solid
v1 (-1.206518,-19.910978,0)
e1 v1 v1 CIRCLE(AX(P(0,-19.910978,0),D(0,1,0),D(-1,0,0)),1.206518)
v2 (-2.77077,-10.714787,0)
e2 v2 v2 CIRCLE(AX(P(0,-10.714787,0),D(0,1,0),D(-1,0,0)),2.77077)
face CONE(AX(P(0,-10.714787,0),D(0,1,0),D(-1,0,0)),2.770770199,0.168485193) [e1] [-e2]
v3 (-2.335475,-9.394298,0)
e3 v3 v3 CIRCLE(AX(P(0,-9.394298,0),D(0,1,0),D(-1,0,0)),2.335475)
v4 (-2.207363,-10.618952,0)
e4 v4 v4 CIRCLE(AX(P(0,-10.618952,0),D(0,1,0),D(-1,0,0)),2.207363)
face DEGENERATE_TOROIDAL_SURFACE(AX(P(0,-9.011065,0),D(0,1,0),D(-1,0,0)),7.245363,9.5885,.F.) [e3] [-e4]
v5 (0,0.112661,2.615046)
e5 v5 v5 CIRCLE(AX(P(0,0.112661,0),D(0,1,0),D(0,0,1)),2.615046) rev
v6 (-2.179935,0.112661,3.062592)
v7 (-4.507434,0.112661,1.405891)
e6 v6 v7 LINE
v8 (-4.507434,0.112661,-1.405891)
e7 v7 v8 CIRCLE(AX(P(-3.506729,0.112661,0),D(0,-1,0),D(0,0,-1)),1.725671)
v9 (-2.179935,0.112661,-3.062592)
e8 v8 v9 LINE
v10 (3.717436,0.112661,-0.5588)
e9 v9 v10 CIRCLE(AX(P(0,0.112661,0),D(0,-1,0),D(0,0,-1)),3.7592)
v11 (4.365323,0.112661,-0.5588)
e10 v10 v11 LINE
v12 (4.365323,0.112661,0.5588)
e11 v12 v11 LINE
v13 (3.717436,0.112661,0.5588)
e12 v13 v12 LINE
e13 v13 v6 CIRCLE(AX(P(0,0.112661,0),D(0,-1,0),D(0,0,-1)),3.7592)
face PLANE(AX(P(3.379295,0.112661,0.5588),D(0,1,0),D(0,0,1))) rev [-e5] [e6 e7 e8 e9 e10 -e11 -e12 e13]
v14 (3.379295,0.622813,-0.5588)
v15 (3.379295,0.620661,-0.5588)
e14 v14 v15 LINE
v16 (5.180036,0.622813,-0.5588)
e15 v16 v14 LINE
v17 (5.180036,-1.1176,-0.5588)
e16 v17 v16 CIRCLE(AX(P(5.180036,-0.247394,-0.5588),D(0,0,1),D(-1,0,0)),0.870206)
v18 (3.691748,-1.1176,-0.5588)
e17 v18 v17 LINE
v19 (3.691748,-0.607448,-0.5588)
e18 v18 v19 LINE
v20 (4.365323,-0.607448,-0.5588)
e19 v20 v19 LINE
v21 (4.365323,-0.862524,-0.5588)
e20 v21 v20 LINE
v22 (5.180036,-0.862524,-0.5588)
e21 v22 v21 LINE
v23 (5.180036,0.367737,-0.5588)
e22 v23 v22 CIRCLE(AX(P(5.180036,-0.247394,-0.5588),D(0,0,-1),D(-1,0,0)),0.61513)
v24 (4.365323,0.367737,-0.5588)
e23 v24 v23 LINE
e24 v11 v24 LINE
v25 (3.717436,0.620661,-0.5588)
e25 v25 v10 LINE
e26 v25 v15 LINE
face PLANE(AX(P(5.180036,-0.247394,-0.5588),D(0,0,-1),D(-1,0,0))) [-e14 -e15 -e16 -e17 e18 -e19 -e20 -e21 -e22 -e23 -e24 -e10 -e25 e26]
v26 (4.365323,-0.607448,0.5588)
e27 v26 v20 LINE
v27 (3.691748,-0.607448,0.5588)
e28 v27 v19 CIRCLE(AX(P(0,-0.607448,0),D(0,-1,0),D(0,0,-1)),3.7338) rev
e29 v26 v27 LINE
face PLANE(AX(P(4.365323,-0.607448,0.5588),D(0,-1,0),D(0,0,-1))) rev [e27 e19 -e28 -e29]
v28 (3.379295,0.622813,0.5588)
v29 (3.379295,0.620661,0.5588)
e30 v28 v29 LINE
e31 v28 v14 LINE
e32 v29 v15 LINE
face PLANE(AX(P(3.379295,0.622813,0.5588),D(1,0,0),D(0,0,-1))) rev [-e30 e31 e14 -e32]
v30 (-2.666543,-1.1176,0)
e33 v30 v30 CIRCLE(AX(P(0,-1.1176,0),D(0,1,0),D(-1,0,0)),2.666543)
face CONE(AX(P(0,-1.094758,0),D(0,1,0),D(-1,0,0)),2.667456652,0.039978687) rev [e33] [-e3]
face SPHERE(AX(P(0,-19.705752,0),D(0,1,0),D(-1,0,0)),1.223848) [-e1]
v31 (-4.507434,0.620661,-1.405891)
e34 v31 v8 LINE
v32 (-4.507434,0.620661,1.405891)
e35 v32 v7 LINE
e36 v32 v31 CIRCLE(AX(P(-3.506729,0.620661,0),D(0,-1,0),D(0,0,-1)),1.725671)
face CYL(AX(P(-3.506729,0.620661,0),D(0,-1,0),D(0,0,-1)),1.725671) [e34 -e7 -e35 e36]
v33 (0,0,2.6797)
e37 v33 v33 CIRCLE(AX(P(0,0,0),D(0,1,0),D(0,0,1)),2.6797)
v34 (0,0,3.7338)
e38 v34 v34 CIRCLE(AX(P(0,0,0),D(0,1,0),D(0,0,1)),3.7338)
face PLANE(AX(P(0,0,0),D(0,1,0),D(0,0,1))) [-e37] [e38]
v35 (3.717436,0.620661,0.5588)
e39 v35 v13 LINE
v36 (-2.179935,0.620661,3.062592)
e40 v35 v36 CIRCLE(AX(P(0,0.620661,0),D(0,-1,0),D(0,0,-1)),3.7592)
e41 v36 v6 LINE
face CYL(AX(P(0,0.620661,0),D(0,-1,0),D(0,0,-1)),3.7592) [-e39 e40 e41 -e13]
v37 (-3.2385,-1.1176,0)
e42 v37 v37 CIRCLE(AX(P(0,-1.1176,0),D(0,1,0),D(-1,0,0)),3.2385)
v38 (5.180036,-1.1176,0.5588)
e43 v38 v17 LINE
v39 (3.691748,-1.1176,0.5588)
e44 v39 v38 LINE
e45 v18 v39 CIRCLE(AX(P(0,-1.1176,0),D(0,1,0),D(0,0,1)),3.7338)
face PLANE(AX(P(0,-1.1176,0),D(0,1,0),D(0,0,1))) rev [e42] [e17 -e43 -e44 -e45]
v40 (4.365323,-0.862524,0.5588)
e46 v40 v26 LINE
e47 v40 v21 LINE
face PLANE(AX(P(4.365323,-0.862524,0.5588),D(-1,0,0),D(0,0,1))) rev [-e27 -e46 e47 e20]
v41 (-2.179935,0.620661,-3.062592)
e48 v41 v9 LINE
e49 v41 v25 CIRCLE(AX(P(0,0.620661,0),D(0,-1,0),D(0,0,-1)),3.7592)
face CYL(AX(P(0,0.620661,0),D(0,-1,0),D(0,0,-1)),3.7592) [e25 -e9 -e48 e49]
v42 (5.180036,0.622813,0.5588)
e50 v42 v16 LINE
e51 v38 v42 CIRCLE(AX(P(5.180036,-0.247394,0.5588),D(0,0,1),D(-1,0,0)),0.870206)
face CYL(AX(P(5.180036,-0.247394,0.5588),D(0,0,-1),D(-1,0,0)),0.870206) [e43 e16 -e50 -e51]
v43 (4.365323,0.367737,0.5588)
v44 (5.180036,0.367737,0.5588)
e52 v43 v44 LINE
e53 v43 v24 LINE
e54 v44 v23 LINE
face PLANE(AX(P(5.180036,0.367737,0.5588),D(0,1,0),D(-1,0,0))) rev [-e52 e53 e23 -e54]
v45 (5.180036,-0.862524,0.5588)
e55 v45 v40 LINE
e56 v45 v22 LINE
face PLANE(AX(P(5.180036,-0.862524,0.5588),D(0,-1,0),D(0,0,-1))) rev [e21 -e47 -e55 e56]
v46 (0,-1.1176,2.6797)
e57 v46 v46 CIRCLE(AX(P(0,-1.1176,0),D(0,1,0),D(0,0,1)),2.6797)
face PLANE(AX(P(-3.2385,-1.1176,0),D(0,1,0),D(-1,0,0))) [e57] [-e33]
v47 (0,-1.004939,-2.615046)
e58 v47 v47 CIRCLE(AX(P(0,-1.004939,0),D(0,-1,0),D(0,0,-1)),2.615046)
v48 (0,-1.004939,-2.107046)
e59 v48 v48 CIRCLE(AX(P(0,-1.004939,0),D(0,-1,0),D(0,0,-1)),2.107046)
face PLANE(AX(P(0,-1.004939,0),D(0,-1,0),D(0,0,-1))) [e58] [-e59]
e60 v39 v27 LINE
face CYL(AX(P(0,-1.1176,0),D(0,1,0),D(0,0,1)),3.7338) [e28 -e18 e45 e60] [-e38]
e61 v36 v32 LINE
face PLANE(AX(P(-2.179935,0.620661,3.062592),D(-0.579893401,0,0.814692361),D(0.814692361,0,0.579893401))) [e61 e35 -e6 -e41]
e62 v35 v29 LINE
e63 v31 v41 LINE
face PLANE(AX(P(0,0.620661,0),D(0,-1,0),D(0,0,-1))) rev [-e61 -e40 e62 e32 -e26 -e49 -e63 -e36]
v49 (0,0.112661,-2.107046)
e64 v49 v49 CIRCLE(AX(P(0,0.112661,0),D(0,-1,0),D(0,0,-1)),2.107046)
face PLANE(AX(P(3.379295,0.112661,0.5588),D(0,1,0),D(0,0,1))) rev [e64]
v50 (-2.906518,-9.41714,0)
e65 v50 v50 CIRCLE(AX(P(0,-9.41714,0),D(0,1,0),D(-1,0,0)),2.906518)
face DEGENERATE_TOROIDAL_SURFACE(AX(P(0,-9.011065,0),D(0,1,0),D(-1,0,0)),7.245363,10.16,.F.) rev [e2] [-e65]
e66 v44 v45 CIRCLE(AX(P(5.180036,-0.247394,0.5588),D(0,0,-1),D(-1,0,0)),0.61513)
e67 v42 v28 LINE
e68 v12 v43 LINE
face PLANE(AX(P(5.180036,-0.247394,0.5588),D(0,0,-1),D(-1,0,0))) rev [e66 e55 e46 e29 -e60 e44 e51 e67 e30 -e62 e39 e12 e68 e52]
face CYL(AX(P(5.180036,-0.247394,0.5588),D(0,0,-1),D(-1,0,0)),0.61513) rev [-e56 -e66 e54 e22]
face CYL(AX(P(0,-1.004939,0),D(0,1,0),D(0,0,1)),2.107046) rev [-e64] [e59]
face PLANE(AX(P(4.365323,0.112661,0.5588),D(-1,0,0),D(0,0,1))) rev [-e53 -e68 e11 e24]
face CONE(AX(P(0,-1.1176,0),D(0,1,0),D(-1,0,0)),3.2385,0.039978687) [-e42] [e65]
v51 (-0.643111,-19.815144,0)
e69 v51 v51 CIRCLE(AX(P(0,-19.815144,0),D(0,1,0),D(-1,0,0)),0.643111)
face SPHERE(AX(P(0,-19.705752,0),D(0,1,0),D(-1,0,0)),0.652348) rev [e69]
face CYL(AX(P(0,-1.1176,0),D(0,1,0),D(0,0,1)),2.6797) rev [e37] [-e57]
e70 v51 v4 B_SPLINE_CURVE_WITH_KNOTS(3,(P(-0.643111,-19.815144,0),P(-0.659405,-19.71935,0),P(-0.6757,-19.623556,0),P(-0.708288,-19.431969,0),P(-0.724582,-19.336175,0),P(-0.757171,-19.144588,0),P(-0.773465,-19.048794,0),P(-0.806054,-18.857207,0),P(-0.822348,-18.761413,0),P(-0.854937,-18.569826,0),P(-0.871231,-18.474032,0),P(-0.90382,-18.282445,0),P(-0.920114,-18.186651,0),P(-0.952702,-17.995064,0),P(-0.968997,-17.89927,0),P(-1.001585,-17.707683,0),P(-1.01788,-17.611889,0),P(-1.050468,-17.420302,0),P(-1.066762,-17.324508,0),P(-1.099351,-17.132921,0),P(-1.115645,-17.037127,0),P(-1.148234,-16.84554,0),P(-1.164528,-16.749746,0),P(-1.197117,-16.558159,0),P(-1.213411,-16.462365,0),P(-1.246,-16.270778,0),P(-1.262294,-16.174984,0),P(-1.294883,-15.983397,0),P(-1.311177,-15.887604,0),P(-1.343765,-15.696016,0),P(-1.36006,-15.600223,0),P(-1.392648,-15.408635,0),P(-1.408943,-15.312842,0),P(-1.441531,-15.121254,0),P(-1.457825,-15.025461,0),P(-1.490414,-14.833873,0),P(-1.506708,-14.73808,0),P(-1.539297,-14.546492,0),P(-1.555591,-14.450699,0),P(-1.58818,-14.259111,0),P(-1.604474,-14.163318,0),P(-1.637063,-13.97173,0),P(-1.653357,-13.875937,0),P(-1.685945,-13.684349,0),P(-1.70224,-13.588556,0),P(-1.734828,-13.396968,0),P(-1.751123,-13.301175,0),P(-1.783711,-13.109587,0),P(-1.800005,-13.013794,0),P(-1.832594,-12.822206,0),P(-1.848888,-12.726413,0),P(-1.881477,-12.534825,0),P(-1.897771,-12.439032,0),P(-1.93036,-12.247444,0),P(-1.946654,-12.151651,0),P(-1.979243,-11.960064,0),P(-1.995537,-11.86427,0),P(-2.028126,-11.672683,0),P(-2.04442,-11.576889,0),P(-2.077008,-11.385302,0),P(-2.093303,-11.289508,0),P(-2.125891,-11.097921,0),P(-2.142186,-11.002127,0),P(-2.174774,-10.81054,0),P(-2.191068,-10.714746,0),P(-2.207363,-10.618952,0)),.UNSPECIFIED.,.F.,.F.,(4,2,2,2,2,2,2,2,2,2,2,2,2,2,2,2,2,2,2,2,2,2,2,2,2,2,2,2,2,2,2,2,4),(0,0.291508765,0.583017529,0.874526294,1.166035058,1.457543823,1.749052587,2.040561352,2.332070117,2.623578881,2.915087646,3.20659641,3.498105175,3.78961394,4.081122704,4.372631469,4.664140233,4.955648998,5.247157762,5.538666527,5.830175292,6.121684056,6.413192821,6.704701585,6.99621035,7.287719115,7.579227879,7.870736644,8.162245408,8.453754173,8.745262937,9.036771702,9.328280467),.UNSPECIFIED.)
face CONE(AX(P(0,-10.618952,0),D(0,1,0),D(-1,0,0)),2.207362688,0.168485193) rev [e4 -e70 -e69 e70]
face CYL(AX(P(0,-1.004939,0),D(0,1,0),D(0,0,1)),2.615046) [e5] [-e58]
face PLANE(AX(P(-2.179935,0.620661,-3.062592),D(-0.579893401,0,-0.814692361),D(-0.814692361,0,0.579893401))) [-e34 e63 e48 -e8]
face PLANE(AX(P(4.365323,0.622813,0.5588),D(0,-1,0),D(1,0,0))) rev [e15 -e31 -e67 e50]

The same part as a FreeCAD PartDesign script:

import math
import FreeCAD as App
import Part
import Sketcher

V = App.Vector
Q = App.Units.Quantity


def faces_at(feature, points):
    """Names of the faces that lie closest to the given points."""
    faces = feature.Shape.Faces
    near = lambda p: min(range(len(faces)), key=lambda i: faces[i].distToShape(Part.Vertex(*p))[0])
    return sorted({f"Face{near(p) + 1}" for p in points})

doc = App.newDocument("Part")
body = doc.addObject("PartDesign::Body", "Body")

sketch1 = doc.addObject("Sketcher::SketchObject", "Sketch")
body.addObject(sketch1)
sketch1.AttachmentSupport = (doc.XZ_Plane, [""])
sketch1.MapMode = "FlatFace"
sketch1.addGeometry([
    Part.Circle(V(0, 0, 0), V(0, 0, 1), 3.7),
    Part.Circle(V(0, 0, 0), V(0, 0, 1), 2.7),
], False)
sketch1.addConstraint([
    Sketcher.Constraint("Coincident", 0, 3, -1, 1),
    Sketcher.Constraint("Coincident", 1, 3, -1, 1),
    Sketcher.Constraint("Diameter", 0, Q("0.294 in")),
    Sketcher.Constraint("Diameter", 1, Q("0.211 in")),
])
pad1 = doc.addObject("PartDesign::Pad", "Pad")
body.addObject(pad1)
pad1.Profile = sketch1
pad1.Length = Q("0.044 in")
body2 = doc.addObject("PartDesign::Body", "Body001")

sketch2 = doc.addObject("Sketcher::SketchObject", "Sketch001")
body2.addObject(sketch2)
sketch2.AttachmentSupport = (doc.getObject("XY_Plane001"), [""])
sketch2.MapMode = "FlatFace"
sketch2.addGeometry([
    Part.LineSegment(V(0, -20.9, 0), V(0, -1.1, 0)),
    Part.LineSegment(V(0, -1.1, 0), V(-3.2, -1.1, 0)),
    Part.LineSegment(V(-3.2, -1.1, 0), V(-2.9, -9.4, 0)),
    Part.ArcOfCircle(Part.Circle(V(7.2, -9, 0), V(0, 0, 1), 10.2), math.radians(-177.71), math.radians(-170.35)),
    Part.LineSegment(V(-2.8, -10.7, 0), V(-1.2, -19.9, 0)),
    Part.ArcOfCircle(Part.Circle(V(0, -19.7, 0), V(0, 0, 1), 1.2), math.radians(-170), math.radians(-90)),
], False)
sketch2.addConstraint([
    Sketcher.Constraint("Coincident", 0, 2, 1, 1),
    Sketcher.Constraint("Coincident", 1, 2, 2, 1),
    Sketcher.Constraint("Tangent", 2, 2, 3, 1),
    Sketcher.Constraint("Tangent", 3, 2, 4, 1),
    Sketcher.Constraint("Tangent", 4, 2, 5, 1),
    Sketcher.Constraint("Coincident", 5, 2, 0, 1),
    Sketcher.Constraint("Vertical", 0),
    Sketcher.Constraint("Horizontal", 1),
    Sketcher.Constraint("PointOnObject", 5, 3, -2),
    Sketcher.Constraint("PointOnObject", 0, 2, -2),
    Sketcher.Constraint("Radius", 3, Q("0.4 in")),
    Sketcher.Constraint("DistanceY", 0, 1, 0, 2, Q("0.78 in")),
    Sketcher.Constraint("DistanceX", 1, 2, 1, 1, Q("0.1275 in")),
    Sketcher.Constraint("DistanceY", 0, 2, -1, 1, Q("0.044 in")),
    Sketcher.Constraint("Radius", 5, Q("1.223848 mm")),
    Sketcher.Constraint("DistanceX", 2, 2, 4, 2, Q("1.7 mm")),
    Sketcher.Constraint("Distance", 4, Q("9.32828 mm")),
])
revolution = doc.addObject("PartDesign::Revolution", "Revolution")
body2.addObject(revolution)
revolution.Profile = sketch2
revolution.ReferenceAxis = (sketch2, ["V_Axis"])
revolution.Angle = 360
doc.recompute()

thickness = doc.addObject("PartDesign::Thickness", "Thickness")
body2.addObject(thickness)
thickness.Base = (revolution, faces_at(revolution, [(0, -1.118, 0)]))
thickness.Value = Q("0.0225 in")
thickness.Reversed = True
thickness.Join = "Intersection"
doc.recompute()

boolean = doc.addObject("PartDesign::Boolean", "Boolean")
body.addObject(boolean)
boolean.Type = "Fuse"
boolean.addObjects([body2])

sketch3 = doc.addObject("Sketcher::SketchObject", "Sketch002")
body.addObject(sketch3)
sketch3.AttachmentSupport = (doc.XY_Plane, [""])
sketch3.MapMode = "FlatFace"
sketch3.addGeometry([
    Part.ArcOfCircle(Part.Circle(V(5.18, -0.25, 0), V(0, 0, 1), 0.87), math.radians(-90), math.radians(90)),
    Part.LineSegment(V(5.18, 0.62, 0), V(3.38, 0.62, 0)),
    Part.LineSegment(V(3.38, 0.62, 0), V(3.38, 0.11, 0)),
    Part.LineSegment(V(3.38, 0.11, 0), V(4.37, 0.11, 0)),
    Part.LineSegment(V(4.37, 0.11, 0), V(4.37, 0.37, 0)),
    Part.LineSegment(V(4.37, 0.37, 0), V(5.18, 0.37, 0)),
    Part.ArcOfCircle(Part.Circle(V(5.18, -0.25, 0), V(0, 0, 1), 0.62), math.radians(-90), math.radians(90)),
    Part.LineSegment(V(5.18, -0.86, 0), V(4.37, -0.86, 0)),
    Part.LineSegment(V(4.37, -0.86, 0), V(4.37, -0.61, 0)),
    Part.LineSegment(V(4.37, -0.61, 0), V(3.38, -0.61, 0)),
    Part.LineSegment(V(3.38, -0.61, 0), V(3.38, -1.12, 0)),
    Part.LineSegment(V(3.38, -1.12, 0), V(5.18, -1.12, 0)),
], False)
sketch3.addConstraint([
    Sketcher.Constraint("Tangent", 0, 2, 1, 1),
    Sketcher.Constraint("Coincident", 1, 2, 2, 1),
    Sketcher.Constraint("Coincident", 2, 2, 3, 1),
    Sketcher.Constraint("Coincident", 3, 2, 4, 1),
    Sketcher.Constraint("Coincident", 4, 2, 5, 1),
    Sketcher.Constraint("Tangent", 5, 2, 6, 2),
    Sketcher.Constraint("Tangent", 6, 1, 7, 1),
    Sketcher.Constraint("Coincident", 7, 2, 8, 1),
    Sketcher.Constraint("Coincident", 8, 2, 9, 1),
    Sketcher.Constraint("Coincident", 9, 2, 10, 1),
    Sketcher.Constraint("Coincident", 10, 2, 11, 1),
    Sketcher.Constraint("Tangent", 11, 2, 0, 1),
    Sketcher.Constraint("Horizontal", 1),
    Sketcher.Constraint("Vertical", 2),
    Sketcher.Constraint("Horizontal", 3),
    Sketcher.Constraint("Vertical", 4),
    Sketcher.Constraint("Horizontal", 5),
    Sketcher.Constraint("Horizontal", 7),
    Sketcher.Constraint("Vertical", 8),
    Sketcher.Constraint("Horizontal", 9),
    Sketcher.Constraint("Vertical", 10),
    Sketcher.Constraint("Horizontal", 11),
    Sketcher.Constraint("Coincident", 6, 3, 0, 3),
    Sketcher.Constraint("Vertical", 4, 2, 7, 2),
    Sketcher.Constraint("Vertical", 2, 2, 9, 2),
    Sketcher.Constraint("Equal", 4, 8),
    Sketcher.Constraint("DistanceY", 10, 2, -1, 1, Q("0.044 in")),
    Sketcher.Constraint("Radius", 6, Q("0.61513 mm")),
    Sketcher.Constraint("Radius", 0, Q("0.870206 mm")),
    Sketcher.Constraint("DistanceX", 1, 2, 1, 1, Q("1.800741 mm")),
    Sketcher.Constraint("DistanceX", 3, 1, 3, 2, Q("0.986028 mm")),
    Sketcher.Constraint("DistanceY", 2, 2, 2, 1, Q("0.510152 mm")),
    Sketcher.Constraint("DistanceX", -1, 1, 0, 3, Q("5.180036 mm")),
])
pad2 = doc.addObject("PartDesign::Pad", "Pad001")
body.addObject(pad2)
pad2.Profile = sketch3
pad2.Length = Q("0.044 in")
pad2.Midplane = True
body3 = doc.addObject("PartDesign::Body", "Body002")

sketch4 = doc.addObject("Sketcher::SketchObject", "Sketch003")
body3.addObject(sketch4)
sketch4.AttachmentSupport = (doc.getObject("XZ_Plane002"), [""])
sketch4.MapMode = "FlatFace"
sketch4.AttachmentOffset = App.Placement(V(0, 0, -0.112661), App.Rotation())
sketch4.addGeometry([
    Part.Circle(V(0, 0, 0), V(0, 0, 1), 2.6),
    Part.Circle(V(0, 0, 0), V(0, 0, 1), 2.1),
], False)
sketch4.addConstraint([
    Sketcher.Constraint("Coincident", 0, 3, -1, 1),
    Sketcher.Constraint("Coincident", 1, 3, -1, 1),
    Sketcher.Constraint("Diameter", 0, Q("5.230093 mm")),
    Sketcher.Constraint("Diameter", 1, Q("4.214093 mm")),
])
pad3 = doc.addObject("PartDesign::Pad", "Pad002")
body3.addObject(pad3)
pad3.Profile = sketch4
pad3.Length = Q("0.044 in")
body.AllowCompound = True
doc.recompute()

boolean2 = doc.addObject("PartDesign::Boolean", "Boolean001")
body.addObject(boolean2)
boolean2.Type = "Fuse"
boolean2.addObjects([body3])

sketch5 = doc.addObject("Sketcher::SketchObject", "Sketch004")
body.addObject(sketch5)
sketch5.AttachmentSupport = (doc.XZ_Plane, [""])
sketch5.MapMode = "FlatFace"
sketch5.AttachmentOffset = App.Placement(V(0, 0, -0.112661), App.Rotation())
sketch5.addGeometry([
    Part.LineSegment(V(-4.5, -1.4, 0), V(-2.2, -3.1, 0)),
    Part.ArcOfCircle(Part.Circle(V(0, 0, 0), V(0, 0, 1), 3.8), math.radians(-125), math.radians(125)),
    Part.LineSegment(V(-2.2, 3.1, 0), V(-4.5, 1.4, 0)),
    Part.ArcOfCircle(Part.Circle(V(-3.5, 0, 0), V(0, 0, 1), 1.7), math.radians(125), math.radians(235)),
], False)
sketch5.addConstraint([
    Sketcher.Constraint("Tangent", 0, 2, 1, 1),
    Sketcher.Constraint("Tangent", 1, 2, 2, 1),
    Sketcher.Constraint("Tangent", 2, 2, 3, 1),
    Sketcher.Constraint("Tangent", 3, 2, 0, 1),
    Sketcher.Constraint("Coincident", 1, 3, -1, 1),
    Sketcher.Constraint("PointOnObject", 3, 3, -1),
    Sketcher.Constraint("Radius", 1, Q("0.148 in")),
    Sketcher.Constraint("Radius", 3, Q("1.725671 mm")),
    Sketcher.Constraint("DistanceY", 3, 2, 2, 2, Q("0.1107001 in")),
])
pad4 = doc.addObject("PartDesign::Pad", "Pad003")
body.addObject(pad4)
pad4.Profile = sketch5
pad4.Length = Q("0.02 in")
pad4.Reversed = True

doc.recompute()
